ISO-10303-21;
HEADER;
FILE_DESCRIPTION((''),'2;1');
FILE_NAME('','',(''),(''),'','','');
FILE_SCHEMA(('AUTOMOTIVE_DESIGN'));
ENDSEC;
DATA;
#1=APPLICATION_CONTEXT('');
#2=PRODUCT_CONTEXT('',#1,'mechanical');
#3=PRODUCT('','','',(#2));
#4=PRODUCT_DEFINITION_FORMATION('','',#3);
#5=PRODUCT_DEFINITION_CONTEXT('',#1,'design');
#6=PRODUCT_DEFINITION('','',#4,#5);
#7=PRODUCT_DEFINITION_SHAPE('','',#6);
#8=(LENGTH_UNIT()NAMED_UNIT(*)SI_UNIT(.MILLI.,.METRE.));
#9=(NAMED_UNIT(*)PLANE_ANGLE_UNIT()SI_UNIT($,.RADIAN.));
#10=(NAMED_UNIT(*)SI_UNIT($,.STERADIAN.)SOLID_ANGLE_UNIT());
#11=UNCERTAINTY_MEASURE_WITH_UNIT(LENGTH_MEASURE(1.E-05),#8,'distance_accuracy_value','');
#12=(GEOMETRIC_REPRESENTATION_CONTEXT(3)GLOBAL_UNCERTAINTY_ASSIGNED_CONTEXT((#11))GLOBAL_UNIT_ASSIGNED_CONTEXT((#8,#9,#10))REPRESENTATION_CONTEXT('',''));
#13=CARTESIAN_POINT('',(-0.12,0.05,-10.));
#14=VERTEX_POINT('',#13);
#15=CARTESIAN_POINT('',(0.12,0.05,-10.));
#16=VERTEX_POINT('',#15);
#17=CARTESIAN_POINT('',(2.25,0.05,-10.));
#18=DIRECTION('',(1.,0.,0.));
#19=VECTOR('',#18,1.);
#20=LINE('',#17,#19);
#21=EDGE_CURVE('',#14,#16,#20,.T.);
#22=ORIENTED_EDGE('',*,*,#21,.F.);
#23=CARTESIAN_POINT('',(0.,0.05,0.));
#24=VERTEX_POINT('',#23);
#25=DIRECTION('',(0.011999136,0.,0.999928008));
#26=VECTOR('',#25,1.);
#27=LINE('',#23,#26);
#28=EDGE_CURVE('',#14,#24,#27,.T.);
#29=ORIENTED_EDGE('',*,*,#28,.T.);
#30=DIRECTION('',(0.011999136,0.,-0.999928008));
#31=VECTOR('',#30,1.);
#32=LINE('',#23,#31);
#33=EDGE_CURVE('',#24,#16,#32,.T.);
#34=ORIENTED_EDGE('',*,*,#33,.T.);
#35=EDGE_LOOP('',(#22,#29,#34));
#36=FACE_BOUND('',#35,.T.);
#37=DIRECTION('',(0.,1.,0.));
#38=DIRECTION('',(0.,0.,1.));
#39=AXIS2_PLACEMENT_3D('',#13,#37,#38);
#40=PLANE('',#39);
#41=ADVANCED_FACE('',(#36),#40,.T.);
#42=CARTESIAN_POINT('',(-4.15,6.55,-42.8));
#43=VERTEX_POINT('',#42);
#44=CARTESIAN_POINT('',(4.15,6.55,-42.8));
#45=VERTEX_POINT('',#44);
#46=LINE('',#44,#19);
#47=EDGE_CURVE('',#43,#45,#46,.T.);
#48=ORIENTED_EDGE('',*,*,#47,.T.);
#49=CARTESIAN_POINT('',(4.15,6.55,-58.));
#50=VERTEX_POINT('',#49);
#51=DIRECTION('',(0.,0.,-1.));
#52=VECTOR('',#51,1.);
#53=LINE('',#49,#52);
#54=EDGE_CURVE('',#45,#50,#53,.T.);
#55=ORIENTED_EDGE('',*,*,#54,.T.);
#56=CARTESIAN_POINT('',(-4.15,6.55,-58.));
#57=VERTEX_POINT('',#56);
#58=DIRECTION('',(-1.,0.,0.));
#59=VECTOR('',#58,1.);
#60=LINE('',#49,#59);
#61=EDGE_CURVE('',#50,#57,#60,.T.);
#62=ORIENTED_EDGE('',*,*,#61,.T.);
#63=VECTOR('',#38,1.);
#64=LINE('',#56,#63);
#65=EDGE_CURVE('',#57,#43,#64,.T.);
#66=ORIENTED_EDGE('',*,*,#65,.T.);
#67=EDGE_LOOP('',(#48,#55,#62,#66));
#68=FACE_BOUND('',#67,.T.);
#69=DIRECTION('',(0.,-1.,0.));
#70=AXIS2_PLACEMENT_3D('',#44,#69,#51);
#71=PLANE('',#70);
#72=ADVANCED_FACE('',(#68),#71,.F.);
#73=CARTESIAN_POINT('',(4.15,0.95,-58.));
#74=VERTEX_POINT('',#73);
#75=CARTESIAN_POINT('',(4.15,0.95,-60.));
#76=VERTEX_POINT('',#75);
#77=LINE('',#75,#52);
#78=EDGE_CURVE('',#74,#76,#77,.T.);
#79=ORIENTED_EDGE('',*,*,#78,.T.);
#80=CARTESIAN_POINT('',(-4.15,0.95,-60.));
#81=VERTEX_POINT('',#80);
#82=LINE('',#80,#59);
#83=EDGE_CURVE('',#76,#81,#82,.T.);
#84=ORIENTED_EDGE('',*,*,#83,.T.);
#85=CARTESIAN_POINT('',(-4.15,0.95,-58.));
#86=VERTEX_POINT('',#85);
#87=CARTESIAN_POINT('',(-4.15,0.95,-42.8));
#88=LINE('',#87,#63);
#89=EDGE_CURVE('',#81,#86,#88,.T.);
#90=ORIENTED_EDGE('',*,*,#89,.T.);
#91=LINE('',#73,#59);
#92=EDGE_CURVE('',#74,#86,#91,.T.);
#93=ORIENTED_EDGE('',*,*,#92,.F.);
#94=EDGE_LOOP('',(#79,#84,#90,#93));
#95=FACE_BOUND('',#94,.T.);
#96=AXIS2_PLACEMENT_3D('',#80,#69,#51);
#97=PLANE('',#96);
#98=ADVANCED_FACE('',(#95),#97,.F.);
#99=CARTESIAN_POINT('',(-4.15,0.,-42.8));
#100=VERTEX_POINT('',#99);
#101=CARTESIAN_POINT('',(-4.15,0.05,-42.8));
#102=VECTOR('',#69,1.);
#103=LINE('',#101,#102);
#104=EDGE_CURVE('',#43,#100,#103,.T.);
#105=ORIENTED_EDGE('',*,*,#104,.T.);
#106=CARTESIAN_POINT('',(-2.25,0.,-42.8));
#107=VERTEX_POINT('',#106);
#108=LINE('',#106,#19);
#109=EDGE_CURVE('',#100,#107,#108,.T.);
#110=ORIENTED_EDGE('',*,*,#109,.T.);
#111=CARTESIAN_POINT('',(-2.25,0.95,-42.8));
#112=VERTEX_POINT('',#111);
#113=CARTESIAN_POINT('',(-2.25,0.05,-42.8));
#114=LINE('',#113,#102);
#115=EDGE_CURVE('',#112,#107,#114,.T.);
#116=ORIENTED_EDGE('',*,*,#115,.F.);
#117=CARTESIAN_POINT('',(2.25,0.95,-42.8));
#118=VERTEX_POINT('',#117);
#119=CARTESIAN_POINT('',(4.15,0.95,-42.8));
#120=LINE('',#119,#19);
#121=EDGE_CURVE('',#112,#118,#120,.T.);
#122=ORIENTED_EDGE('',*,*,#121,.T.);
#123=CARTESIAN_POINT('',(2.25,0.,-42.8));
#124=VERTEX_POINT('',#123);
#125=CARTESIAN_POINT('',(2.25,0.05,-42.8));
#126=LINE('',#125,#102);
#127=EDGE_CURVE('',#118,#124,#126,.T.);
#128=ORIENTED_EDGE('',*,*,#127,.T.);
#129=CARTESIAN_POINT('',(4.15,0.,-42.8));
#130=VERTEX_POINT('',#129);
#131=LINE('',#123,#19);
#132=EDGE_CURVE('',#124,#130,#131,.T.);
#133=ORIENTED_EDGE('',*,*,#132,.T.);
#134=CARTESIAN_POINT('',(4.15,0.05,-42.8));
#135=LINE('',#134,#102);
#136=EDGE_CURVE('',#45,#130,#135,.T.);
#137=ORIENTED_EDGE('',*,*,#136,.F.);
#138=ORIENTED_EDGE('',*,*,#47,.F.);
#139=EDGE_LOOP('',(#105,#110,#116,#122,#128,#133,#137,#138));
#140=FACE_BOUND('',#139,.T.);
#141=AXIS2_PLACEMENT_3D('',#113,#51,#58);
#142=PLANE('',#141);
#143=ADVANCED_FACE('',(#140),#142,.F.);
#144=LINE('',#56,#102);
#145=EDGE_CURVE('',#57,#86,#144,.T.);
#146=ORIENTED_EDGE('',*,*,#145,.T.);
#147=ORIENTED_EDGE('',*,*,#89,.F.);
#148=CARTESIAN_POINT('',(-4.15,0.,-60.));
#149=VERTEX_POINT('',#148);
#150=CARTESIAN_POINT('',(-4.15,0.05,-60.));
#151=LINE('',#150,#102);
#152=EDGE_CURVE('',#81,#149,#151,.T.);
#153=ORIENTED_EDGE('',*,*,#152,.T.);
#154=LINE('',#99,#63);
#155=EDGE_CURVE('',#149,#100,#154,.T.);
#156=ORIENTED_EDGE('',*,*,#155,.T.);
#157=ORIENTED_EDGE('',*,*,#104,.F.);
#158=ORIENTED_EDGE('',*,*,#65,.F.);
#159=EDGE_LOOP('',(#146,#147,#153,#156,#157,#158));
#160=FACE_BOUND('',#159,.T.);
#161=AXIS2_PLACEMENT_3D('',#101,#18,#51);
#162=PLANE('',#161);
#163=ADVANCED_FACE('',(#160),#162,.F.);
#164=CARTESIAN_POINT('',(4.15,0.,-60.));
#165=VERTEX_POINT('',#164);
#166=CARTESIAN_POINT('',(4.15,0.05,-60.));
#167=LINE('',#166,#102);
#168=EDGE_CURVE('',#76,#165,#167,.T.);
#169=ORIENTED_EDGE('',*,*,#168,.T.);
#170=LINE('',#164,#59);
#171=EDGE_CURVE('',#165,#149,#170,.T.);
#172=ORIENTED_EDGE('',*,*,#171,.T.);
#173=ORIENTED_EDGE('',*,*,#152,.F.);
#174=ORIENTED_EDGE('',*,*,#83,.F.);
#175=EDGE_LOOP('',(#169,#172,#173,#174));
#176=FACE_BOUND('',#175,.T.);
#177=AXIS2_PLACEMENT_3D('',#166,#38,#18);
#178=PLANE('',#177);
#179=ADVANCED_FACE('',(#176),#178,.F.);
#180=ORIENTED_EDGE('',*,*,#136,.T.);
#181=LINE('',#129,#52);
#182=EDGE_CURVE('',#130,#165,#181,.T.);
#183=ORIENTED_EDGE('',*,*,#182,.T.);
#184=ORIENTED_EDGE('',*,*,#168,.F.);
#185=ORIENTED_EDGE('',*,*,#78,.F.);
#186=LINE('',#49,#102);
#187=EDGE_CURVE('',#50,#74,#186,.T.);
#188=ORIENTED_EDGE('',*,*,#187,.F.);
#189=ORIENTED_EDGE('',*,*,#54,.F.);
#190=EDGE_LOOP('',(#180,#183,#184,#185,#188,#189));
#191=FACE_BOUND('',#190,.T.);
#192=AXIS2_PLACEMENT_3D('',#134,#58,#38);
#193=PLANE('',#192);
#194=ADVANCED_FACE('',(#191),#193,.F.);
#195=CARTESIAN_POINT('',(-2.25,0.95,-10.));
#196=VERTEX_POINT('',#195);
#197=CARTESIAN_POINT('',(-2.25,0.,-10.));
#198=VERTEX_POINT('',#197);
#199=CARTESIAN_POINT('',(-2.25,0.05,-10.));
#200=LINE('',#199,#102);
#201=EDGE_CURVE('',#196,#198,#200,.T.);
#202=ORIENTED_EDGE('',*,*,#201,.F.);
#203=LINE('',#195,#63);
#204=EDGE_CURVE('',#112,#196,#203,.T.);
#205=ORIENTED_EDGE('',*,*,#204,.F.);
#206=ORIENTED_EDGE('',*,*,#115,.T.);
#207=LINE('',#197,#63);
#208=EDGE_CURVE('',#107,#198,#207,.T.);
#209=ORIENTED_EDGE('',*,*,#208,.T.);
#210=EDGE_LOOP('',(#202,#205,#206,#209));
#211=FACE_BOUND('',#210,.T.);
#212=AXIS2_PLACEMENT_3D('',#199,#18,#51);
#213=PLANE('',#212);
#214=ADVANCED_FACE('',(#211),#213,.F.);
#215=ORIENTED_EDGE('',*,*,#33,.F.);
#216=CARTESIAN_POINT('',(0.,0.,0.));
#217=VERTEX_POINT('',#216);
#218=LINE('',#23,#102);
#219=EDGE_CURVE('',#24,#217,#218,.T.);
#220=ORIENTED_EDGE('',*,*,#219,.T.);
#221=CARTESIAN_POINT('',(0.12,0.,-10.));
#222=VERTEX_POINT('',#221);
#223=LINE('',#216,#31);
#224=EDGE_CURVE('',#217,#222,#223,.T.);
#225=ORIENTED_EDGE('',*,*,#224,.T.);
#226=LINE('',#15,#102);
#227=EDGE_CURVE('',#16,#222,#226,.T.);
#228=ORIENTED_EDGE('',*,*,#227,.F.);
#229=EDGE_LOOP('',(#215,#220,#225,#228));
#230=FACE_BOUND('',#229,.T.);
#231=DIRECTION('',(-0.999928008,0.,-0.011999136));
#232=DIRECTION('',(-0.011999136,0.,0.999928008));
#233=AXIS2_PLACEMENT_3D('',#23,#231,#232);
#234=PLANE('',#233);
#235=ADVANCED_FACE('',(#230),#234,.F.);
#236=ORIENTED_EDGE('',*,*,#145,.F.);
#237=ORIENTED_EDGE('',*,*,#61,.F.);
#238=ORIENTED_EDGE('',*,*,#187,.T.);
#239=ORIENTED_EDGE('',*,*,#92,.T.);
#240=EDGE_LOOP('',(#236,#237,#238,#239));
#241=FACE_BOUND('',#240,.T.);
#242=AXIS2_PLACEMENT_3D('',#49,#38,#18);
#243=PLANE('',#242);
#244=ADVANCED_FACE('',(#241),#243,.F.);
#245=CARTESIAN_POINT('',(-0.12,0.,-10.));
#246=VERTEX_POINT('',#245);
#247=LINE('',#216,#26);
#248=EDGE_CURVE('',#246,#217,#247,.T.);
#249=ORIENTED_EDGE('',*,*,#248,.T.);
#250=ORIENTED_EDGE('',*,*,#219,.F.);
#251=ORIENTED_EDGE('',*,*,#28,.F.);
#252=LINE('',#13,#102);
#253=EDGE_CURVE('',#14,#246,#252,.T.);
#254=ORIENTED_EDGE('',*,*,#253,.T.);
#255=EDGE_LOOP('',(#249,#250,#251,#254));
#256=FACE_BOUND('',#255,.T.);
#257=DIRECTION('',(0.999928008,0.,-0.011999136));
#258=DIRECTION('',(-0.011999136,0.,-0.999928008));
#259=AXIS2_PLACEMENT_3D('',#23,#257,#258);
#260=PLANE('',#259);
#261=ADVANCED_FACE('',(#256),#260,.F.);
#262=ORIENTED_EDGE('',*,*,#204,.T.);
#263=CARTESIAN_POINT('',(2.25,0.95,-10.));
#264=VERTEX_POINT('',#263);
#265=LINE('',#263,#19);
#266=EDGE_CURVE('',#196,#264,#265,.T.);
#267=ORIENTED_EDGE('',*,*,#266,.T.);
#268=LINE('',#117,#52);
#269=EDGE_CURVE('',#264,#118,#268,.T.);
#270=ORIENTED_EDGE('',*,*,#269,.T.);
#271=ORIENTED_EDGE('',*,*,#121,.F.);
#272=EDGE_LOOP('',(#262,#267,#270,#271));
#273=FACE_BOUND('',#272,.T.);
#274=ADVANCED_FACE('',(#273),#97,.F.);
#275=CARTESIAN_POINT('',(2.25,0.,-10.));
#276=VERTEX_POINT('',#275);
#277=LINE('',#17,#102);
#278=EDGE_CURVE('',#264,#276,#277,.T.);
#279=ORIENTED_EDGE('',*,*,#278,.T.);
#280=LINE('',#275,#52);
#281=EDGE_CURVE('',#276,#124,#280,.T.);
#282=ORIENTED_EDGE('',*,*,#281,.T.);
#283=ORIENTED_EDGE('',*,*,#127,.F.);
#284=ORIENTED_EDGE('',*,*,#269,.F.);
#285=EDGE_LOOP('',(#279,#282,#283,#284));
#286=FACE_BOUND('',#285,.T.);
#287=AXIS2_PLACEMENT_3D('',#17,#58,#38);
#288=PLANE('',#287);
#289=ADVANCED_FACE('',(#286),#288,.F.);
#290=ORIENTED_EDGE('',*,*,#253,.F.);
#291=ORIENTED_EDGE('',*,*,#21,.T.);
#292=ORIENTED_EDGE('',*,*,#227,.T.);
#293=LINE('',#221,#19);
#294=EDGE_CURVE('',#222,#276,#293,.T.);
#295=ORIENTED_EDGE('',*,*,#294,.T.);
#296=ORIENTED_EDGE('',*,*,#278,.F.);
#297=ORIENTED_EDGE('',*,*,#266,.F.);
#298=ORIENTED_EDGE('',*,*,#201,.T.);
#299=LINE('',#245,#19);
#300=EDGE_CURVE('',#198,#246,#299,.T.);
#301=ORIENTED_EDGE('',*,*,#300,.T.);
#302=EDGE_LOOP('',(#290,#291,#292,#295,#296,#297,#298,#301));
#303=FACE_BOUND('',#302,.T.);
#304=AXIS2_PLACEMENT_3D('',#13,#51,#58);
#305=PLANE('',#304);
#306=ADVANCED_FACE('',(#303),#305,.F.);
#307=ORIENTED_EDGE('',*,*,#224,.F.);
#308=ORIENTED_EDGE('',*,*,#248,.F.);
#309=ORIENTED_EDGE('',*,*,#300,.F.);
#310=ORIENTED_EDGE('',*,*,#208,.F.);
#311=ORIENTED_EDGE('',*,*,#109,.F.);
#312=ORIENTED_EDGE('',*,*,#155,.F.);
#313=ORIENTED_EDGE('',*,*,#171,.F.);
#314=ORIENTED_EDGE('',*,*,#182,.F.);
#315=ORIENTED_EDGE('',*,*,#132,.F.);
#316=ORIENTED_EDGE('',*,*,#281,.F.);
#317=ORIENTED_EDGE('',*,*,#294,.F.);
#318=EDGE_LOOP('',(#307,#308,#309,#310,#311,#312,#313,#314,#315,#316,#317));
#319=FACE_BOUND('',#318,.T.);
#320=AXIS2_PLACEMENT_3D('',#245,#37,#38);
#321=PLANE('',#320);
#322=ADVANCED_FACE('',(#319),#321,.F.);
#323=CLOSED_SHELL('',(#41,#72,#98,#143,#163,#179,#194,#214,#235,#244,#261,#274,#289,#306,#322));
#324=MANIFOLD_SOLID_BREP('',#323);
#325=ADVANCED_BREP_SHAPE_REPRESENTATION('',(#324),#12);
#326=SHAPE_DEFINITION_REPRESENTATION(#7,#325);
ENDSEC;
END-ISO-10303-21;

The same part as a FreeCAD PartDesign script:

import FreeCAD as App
import Part
import Sketcher

doc = App.newDocument("Part")
body = doc.addObject("PartDesign::Body", "Body")

sketch1 = doc.addObject("Sketcher::SketchObject", "Sketch")
body.addObject(sketch1)
sketch1.AttachmentSupport = (doc.XZ_Plane, [""])
sketch1.MapMode = "FlatFace"
sketch1.addGeometry([
    Part.LineSegment(App.Vector(0, 0, 0), App.Vector(0.1, -10, 0)),
    Part.LineSegment(App.Vector(0.1, -10, 0), App.Vector(2.2, -10, 0)),
    Part.LineSegment(App.Vector(2.2, -10, 0), App.Vector(2.2, -42.8, 0)),
    Part.LineSegment(App.Vector(2.2, -42.8, 0), App.Vector(4.2, -42.8, 0)),
    Part.LineSegment(App.Vector(4.2, -42.8, 0), App.Vector(4.2, -60, 0)),
    Part.LineSegment(App.Vector(4.2, -60, 0), App.Vector(-4.2, -60, 0)),
    Part.LineSegment(App.Vector(-4.2, -60, 0), App.Vector(-4.2, -42.8, 0)),
    Part.LineSegment(App.Vector(-4.2, -42.8, 0), App.Vector(-2.2, -42.8, 0)),
    Part.LineSegment(App.Vector(-2.2, -42.8, 0), App.Vector(-2.2, -10, 0)),
    Part.LineSegment(App.Vector(-2.2, -10, 0), App.Vector(-0.1, -10, 0)),
    Part.LineSegment(App.Vector(-0.1, -10, 0), App.Vector(0, 0, 0)),
], False)
sketch1.addConstraint([
    Sketcher.Constraint("Coincident", 0, 2, 1, 1),
    Sketcher.Constraint("Coincident", 1, 2, 2, 1),
    Sketcher.Constraint("Coincident", 2, 2, 3, 1),
    Sketcher.Constraint("Coincident", 3, 2, 4, 1),
    Sketcher.Constraint("Coincident", 4, 2, 5, 1),
    Sketcher.Constraint("Coincident", 5, 2, 6, 1),
    Sketcher.Constraint("Coincident", 6, 2, 7, 1),
    Sketcher.Constraint("Coincident", 7, 2, 8, 1),
    Sketcher.Constraint("Coincident", 8, 2, 9, 1),
    Sketcher.Constraint("Coincident", 9, 2, 10, 1),
    Sketcher.Constraint("Coincident", 10, 2, 0, 1),
    Sketcher.Constraint("Horizontal", 1),
    Sketcher.Constraint("Vertical", 2),
    Sketcher.Constraint("Horizontal", 3),
    Sketcher.Constraint("Vertical", 4),
    Sketcher.Constraint("Horizontal", 5),
    Sketcher.Constraint("Vertical", 6),
    Sketcher.Constraint("Horizontal", 7),
    Sketcher.Constraint("Vertical", 8),
    Sketcher.Constraint("Horizontal", 9),
    Sketcher.Constraint("Coincident", 10, 2, -1, 1),
    Sketcher.Constraint("Symmetric", 3, 2, 6, 2, -2),
    Sketcher.Constraint("Symmetric", 1, 2, 8, 2, -2),
    Sketcher.Constraint("Equal", 1, 9),
    Sketcher.Constraint("DistanceX", 3, 1, 3, 2, 1.9),
    Sketcher.Constraint("DistanceX", 5, 2, 5, 1, 8.3),
    Sketcher.Constraint("DistanceY", 2, 2, 2, 1, 32.8),
    Sketcher.Constraint("DistanceY", 4, 2, 4, 1, 17.2),
    Sketcher.Constraint("DistanceY", 0, 2, -1, 1, 10.0),
    Sketcher.Constraint("DistanceX", 1, 1, 1, 2, 2.13),
])
pad1 = doc.addObject("PartDesign::Pad", "Pad")
body.addObject(pad1)
pad1.Profile = sketch1
pad1.Length = 0.05
pad1.Reversed = True

sketch2 = doc.addObject("Sketcher::SketchObject", "Sketch001")
body.addObject(sketch2)
sketch2.AttachmentSupport = (doc.XZ_Plane, [""])
sketch2.MapMode = "FlatFace"
sketch2.AttachmentOffset = App.Placement(App.Vector(0, 0, -0.05), App.Rotation())
sketch2.addGeometry([
    Part.LineSegment(App.Vector(4.2, -60, 0), App.Vector(-4.2, -60, 0)),
    Part.LineSegment(App.Vector(-4.2, -60, 0), App.Vector(-4.2, -42.8, 0)),
    Part.LineSegment(App.Vector(-4.2, -42.8, 0), App.Vector(-2.2, -42.8, 0)),
    Part.LineSegment(App.Vector(-2.2, -42.8, 0), App.Vector(-2.2, -10, 0)),
    Part.LineSegment(App.Vector(-2.2, -10, 0), App.Vector(2.2, -10, 0)),
    Part.LineSegment(App.Vector(2.2, -10, 0), App.Vector(2.2, -42.8, 0)),
    Part.LineSegment(App.Vector(2.2, -42.8, 0), App.Vector(4.2, -42.8, 0)),
    Part.LineSegment(App.Vector(4.2, -42.8, 0), App.Vector(4.2, -60, 0)),
], False)
sketch2.addConstraint([
    Sketcher.Constraint("Coincident", 0, 2, 1, 1),
    Sketcher.Constraint("Coincident", 1, 2, 2, 1),
    Sketcher.Constraint("Coincident", 2, 2, 3, 1),
    Sketcher.Constraint("Coincident", 3, 2, 4, 1),
    Sketcher.Constraint("Coincident", 4, 2, 5, 1),
    Sketcher.Constraint("Coincident", 5, 2, 6, 1),
    Sketcher.Constraint("Coincident", 6, 2, 7, 1),
    Sketcher.Constraint("Coincident", 7, 2, 0, 1),
    Sketcher.Constraint("Horizontal", 0),
    Sketcher.Constraint("Vertical", 1),
    Sketcher.Constraint("Horizontal", 2),
    Sketcher.Constraint("Vertical", 3),
    Sketcher.Constraint("Horizontal", 4),
    Sketcher.Constraint("Vertical", 5),
    Sketcher.Constraint("Horizontal", 6),
    Sketcher.Constraint("Vertical", 7),
    Sketcher.Constraint("Symmetric", 2, 2, 5, 2, -2),
    Sketcher.Constraint("Equal", 2, 6),
    Sketcher.Constraint("DistanceX", 0, 2, 0, 1, 8.3),
    Sketcher.Constraint("DistanceX", 2, 1, 2, 2, 1.9),
    Sketcher.Constraint("DistanceY", 1, 1, 1, 2, 17.2),
    Sketcher.Constraint("DistanceY", 3, 1, 3, 2, 32.8),
    Sketcher.Constraint("DistanceY", 0, 2, -1, 1, 60.0),
])
pad2 = doc.addObject("PartDesign::Pad", "Pad001")
body.addObject(pad2)
pad2.Profile = sketch2
pad2.Length = 0.9
pad2.Reversed = True

sketch3 = doc.addObject("Sketcher::SketchObject", "Sketch002")
body.addObject(sketch3)
sketch3.AttachmentSupport = (doc.XZ_Plane, [""])
sketch3.MapMode = "FlatFace"
sketch3.AttachmentOffset = App.Placement(App.Vector(0, 0, -0.95), App.Rotation())
sketch3.addGeometry([
    Part.LineSegment(App.Vector(-4, -58, 0), App.Vector(-4, -43, 0)),
    Part.LineSegment(App.Vector(-4, -43, 0), App.Vector(4, -43, 0)),
    Part.LineSegment(App.Vector(4, -43, 0), App.Vector(4, -58, 0)),
    Part.LineSegment(App.Vector(4, -58, 0), App.Vector(-4, -58, 0)),
], False)
sketch3.addConstraint([
    Sketcher.Constraint("Coincident", 0, 2, 1, 1),
    Sketcher.Constraint("Coincident", 1, 2, 2, 1),
    Sketcher.Constraint("Coincident", 2, 2, 3, 1),
    Sketcher.Constraint("Coincident", 3, 2, 0, 1),
    Sketcher.Constraint("Vertical", 0),
    Sketcher.Constraint("Horizontal", 1),
    Sketcher.Constraint("Vertical", 2),
    Sketcher.Constraint("Horizontal", 3),
    Sketcher.Constraint("DistanceX", 1, 1, 1, 2, 8.3),
    Sketcher.Constraint("DistanceY", 0, 1, 0, 2, 15.2),
    Sketcher.Constraint("DistanceY", 2, 2, -1, 1, 58.0),
    Sketcher.Constraint("DistanceX", 0, 2, -1, 1, 4.15),
])
pad3 = doc.addObject("PartDesign::Pad", "Pad002")
body.addObject(pad3)
pad3.Profile = sketch3
pad3.Length = 5.6
pad3.Reversed = True

doc.recompute()
